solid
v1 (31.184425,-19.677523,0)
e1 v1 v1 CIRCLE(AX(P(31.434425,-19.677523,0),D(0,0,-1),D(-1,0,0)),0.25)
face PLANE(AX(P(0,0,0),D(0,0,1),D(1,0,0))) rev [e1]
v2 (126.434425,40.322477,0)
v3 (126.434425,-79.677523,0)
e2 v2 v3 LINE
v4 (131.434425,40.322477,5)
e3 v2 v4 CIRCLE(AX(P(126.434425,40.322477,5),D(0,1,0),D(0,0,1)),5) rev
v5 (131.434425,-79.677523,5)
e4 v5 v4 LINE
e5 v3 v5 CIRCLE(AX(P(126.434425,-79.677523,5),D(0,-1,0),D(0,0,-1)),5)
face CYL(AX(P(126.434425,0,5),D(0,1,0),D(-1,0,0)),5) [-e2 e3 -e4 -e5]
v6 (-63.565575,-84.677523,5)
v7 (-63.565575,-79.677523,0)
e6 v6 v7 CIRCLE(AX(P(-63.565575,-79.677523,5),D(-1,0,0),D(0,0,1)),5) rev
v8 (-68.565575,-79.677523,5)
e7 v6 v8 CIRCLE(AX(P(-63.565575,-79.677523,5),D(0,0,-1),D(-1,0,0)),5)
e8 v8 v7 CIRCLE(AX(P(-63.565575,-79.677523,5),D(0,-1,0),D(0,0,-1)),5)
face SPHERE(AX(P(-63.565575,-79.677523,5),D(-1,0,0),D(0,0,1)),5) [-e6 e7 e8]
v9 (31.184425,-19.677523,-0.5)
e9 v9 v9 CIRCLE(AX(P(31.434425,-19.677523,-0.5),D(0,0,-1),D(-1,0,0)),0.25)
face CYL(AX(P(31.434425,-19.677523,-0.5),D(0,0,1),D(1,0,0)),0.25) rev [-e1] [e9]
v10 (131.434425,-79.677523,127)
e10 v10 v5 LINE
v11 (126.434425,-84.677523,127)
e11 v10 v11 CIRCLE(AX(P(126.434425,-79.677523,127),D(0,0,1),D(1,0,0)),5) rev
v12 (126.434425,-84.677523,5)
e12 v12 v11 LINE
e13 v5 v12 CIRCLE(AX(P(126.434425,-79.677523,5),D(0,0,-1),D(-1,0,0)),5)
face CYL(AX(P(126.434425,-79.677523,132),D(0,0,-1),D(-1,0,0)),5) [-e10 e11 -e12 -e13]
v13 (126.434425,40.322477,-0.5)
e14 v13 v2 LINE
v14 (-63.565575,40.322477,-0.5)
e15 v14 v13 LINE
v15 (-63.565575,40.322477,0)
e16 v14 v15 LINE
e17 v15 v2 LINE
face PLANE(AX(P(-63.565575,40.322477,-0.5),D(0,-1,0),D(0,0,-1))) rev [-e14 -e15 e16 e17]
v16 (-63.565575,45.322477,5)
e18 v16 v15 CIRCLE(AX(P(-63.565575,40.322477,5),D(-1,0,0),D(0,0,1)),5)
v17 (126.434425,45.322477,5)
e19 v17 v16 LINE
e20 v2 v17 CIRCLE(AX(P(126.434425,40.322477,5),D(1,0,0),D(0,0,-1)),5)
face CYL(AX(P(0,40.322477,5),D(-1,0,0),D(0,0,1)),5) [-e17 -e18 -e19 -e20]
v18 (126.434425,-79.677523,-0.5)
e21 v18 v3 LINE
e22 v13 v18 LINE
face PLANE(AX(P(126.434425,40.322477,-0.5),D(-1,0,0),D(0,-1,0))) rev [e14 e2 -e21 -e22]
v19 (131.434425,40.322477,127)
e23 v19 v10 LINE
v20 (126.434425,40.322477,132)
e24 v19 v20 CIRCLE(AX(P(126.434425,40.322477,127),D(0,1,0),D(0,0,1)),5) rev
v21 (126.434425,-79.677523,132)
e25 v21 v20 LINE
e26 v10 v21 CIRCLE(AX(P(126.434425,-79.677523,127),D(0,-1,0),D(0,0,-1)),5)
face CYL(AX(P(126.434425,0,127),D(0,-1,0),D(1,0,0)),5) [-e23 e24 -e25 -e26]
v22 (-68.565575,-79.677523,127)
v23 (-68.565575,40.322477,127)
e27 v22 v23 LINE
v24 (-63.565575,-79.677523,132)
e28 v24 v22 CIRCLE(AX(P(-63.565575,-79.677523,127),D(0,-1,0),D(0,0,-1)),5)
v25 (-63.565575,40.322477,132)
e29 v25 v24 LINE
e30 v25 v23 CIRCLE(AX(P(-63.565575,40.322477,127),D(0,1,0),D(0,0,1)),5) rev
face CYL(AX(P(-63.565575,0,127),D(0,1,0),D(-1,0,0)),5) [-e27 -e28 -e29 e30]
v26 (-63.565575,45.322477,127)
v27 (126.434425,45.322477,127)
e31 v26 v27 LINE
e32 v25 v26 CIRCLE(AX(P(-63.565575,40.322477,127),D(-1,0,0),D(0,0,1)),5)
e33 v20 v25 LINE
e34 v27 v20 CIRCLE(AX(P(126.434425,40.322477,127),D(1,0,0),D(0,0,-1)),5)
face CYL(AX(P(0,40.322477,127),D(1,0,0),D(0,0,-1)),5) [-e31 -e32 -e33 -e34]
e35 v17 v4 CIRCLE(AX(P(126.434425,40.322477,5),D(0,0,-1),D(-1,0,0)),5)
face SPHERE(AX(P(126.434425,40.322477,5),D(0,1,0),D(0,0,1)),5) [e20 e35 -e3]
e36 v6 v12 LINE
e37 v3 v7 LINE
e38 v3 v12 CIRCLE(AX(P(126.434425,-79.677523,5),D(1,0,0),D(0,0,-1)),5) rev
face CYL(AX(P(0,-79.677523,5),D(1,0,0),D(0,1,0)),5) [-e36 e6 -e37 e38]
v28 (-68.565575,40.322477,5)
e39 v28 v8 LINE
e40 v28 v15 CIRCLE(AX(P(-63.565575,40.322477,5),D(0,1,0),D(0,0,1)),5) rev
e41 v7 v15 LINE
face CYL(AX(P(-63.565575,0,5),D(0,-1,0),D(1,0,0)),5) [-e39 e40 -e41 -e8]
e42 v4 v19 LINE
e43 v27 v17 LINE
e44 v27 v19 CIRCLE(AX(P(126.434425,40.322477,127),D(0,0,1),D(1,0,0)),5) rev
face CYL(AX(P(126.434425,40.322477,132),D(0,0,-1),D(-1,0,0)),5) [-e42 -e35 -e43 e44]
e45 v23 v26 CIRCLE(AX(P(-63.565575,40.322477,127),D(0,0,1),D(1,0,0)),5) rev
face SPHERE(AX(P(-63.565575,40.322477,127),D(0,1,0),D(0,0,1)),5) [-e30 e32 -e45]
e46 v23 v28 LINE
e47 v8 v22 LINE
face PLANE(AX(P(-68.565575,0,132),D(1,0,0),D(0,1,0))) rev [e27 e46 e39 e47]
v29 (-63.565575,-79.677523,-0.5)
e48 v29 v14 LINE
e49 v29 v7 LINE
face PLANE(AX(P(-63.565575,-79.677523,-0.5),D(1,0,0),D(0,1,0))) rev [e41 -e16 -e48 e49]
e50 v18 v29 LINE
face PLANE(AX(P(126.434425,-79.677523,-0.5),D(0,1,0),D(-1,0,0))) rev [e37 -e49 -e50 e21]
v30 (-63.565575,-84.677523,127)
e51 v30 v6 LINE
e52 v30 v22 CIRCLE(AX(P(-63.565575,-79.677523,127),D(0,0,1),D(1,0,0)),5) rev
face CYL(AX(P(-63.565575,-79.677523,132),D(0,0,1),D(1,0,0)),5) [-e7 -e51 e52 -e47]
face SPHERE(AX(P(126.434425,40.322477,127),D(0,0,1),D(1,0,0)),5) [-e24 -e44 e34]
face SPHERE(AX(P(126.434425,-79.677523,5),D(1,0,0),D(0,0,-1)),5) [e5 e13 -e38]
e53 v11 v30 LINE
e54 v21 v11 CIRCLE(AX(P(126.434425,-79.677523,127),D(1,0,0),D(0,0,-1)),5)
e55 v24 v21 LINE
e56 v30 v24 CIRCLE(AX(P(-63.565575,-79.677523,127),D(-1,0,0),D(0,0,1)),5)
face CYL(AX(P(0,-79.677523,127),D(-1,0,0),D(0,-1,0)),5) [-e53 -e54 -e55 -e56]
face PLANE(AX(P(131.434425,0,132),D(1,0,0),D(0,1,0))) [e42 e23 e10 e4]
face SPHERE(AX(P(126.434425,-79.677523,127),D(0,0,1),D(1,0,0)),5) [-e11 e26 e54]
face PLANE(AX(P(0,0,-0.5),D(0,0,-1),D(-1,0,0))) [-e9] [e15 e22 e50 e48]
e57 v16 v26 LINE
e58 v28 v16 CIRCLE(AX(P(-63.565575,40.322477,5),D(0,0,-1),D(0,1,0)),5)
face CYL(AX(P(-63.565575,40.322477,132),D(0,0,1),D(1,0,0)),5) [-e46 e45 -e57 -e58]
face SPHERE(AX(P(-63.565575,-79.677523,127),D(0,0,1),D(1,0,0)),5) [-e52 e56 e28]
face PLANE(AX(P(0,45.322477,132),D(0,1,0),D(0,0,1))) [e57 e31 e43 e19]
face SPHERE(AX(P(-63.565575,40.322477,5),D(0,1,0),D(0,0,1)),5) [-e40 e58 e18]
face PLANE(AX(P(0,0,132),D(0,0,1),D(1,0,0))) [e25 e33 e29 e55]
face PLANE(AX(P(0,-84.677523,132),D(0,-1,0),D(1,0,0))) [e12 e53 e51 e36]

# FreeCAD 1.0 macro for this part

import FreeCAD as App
import Part
import Sketcher
Q = App.Units.Quantity

doc = App.newDocument("Part")
body = doc.addObject("PartDesign::Body", "Body")

# Sketch on XY plane
sketch1 = body.newObject("Sketcher::SketchObject", "Sketch")
sketch1.AttachmentSupport = (doc.getObject("XY_Plane"), [""])
sketch1.MapMode = "FlatFace"
sketch1.addGeometry(Part.LineSegment(App.Vector(-69, 45, 0), App.Vector(-69, -85, 0)), False)
sketch1.addGeometry(Part.LineSegment(App.Vector(-69, -85, 0), App.Vector(131, -85, 0)), False)
sketch1.addGeometry(Part.LineSegment(App.Vector(131, -85, 0), App.Vector(131, 45, 0)), False)
sketch1.addGeometry(Part.LineSegment(App.Vector(131, 45, 0), App.Vector(-69, 45, 0)), False)
sketch1.addConstraint(Sketcher.Constraint("Coincident", 0, 2, 1, 1))
sketch1.addConstraint(Sketcher.Constraint("Coincident", 1, 2, 2, 1))
sketch1.addConstraint(Sketcher.Constraint("Coincident", 2, 2, 3, 1))
sketch1.addConstraint(Sketcher.Constraint("Coincident", 3, 2, 0, 1))
sketch1.addConstraint(Sketcher.Constraint("Vertical", 0))
sketch1.addConstraint(Sketcher.Constraint("Horizontal", 1))
sketch1.addConstraint(Sketcher.Constraint("Vertical", 2))
sketch1.addConstraint(Sketcher.Constraint("Horizontal", 3))
sketch1.addConstraint(Sketcher.Constraint("DistanceX", 1, 1, 1, 2, Q("200 mm")))
sketch1.addConstraint(Sketcher.Constraint("DistanceY", 0, 2, 0, 1, Q("130 mm")))
sketch1.addConstraint(Sketcher.Constraint("DistanceX", 0, 2, -1, 1, Q("68.565575 mm")))
sketch1.addConstraint(Sketcher.Constraint("DistanceY", 0, 2, -1, 1, Q("84.677523 mm")))
pad1 = body.newObject("PartDesign::Pad", "Pad")
pad1.Profile = sketch1
pad1.Length = 132
doc.recompute()

fillet = body.newObject("PartDesign::Fillet", "Fillet")
fillet.Base = (pad1, ["Edge1"])
fillet.UseAllEdges = True
fillet.Radius = 5

# Sketch on XY plane
sketch2 = body.newObject("Sketcher::SketchObject", "Sketch001")
sketch2.AttachmentSupport = (doc.getObject("XY_Plane"), [""])
sketch2.MapMode = "FlatFace"
sketch2.addGeometry(Part.LineSegment(App.Vector(126.43, 40.32, 0), App.Vector(126.43, -79.68, 0)), False)
sketch2.addGeometry(Part.LineSegment(App.Vector(126.43, -79.68, 0), App.Vector(-63.57, -79.68, 0)), False)
sketch2.addGeometry(Part.LineSegment(App.Vector(-63.57, -79.68, 0), App.Vector(-63.57, 40.32, 0)), False)
sketch2.addGeometry(Part.LineSegment(App.Vector(-63.57, 40.32, 0), App.Vector(126.43, 40.32, 0)), False)
sketch2.addGeometry(Part.Circle(App.Vector(31.43, -19.68, 0), App.Vector(0, 0, 1), 0.25), False)
sketch2.addConstraint(Sketcher.Constraint("Coincident", 0, 2, 1, 1))
sketch2.addConstraint(Sketcher.Constraint("Coincident", 1, 2, 2, 1))
sketch2.addConstraint(Sketcher.Constraint("Coincident", 2, 2, 3, 1))
sketch2.addConstraint(Sketcher.Constraint("Coincident", 3, 2, 0, 1))
sketch2.addConstraint(Sketcher.Constraint("Vertical", 0))
sketch2.addConstraint(Sketcher.Constraint("Horizontal", 1))
sketch2.addConstraint(Sketcher.Constraint("Vertical", 2))
sketch2.addConstraint(Sketcher.Constraint("Horizontal", 3))
sketch2.addConstraint(Sketcher.Constraint("Diameter", 4, Q("0.5 mm")))
sketch2.addConstraint(Sketcher.Constraint("DistanceX", 1, 2, 1, 1, Q("190 mm")))
sketch2.addConstraint(Sketcher.Constraint("DistanceY", 0, 2, 0, 1, Q("120 mm")))
sketch2.addConstraint(Sketcher.Constraint("DistanceX", 4, 3, 0, 2, Q("95 mm")))
sketch2.addConstraint(Sketcher.Constraint("DistanceY", 0, 2, 4, 3, Q("60 mm")))
sketch2.addConstraint(Sketcher.Constraint("DistanceX", -1, 1, 4, 3, Q("31.434425 mm")))
sketch2.addConstraint(Sketcher.Constraint("DistanceY", 4, 3, -1, 1, Q("19.677523 mm")))
pad2 = body.newObject("PartDesign::Pad", "Pad001")
pad2.Profile = sketch2
pad2.Length = 0.5
pad2.Reversed = True

doc.recompute()
